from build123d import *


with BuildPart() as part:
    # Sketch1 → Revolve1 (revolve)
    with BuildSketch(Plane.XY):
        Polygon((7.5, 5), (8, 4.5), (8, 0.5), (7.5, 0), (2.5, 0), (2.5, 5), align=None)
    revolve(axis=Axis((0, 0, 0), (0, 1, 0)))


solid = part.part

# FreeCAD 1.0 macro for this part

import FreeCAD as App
import Part
import Sketcher

V = App.Vector
Q = App.Units.Quantity

doc = App.newDocument("Part")
params = doc.addObject("Spreadsheet::Sheet", "Params")
for row, (alias, value) in enumerate([
    ("sketch1_width", "5 mm"),
    ("sketch1_height", "4 mm"),
    ("revolution_angle", "360 deg"),
], start=1):
    params.set(f"A{row}", alias)
    params.set(f"B{row}", "=" + value)
    params.setAlias(f"B{row}", alias)

body = doc.addObject("PartDesign::Body", "Body")

# Sketch on XY plane
sketch1 = doc.addObject("Sketcher::SketchObject", "Sketch")
body.addObject(sketch1)
sketch1.AttachmentSupport = (doc.XY_Plane, [""])
sketch1.MapMode = "FlatFace"
sketch1.addGeometry(Part.LineSegment(V(8, 4.5, 0), V(7.5, 5, 0)), False)
sketch1.addGeometry(Part.LineSegment(V(7.5, 5, 0), V(2.5, 5, 0)), False)
sketch1.addGeometry(Part.LineSegment(V(2.5, 5, 0), V(2.5, 0, 0)), False)
sketch1.addGeometry(Part.LineSegment(V(2.5, 0, 0), V(7.5, 0, 0)), False)
sketch1.addGeometry(Part.LineSegment(V(7.5, 0, 0), V(8, 0.5, 0)), False)
sketch1.addGeometry(Part.LineSegment(V(8, 0.5, 0), V(8, 4.5, 0)), False)
sketch1.addConstraint(Sketcher.Constraint("Coincident", 0, 2, 1, 1))
sketch1.addConstraint(Sketcher.Constraint("Coincident", 1, 2, 2, 1))
sketch1.addConstraint(Sketcher.Constraint("Coincident", 2, 2, 3, 1))
sketch1.addConstraint(Sketcher.Constraint("Coincident", 3, 2, 4, 1))
sketch1.addConstraint(Sketcher.Constraint("Coincident", 4, 2, 5, 1))
sketch1.addConstraint(Sketcher.Constraint("Coincident", 5, 2, 0, 1))
sketch1.addConstraint(Sketcher.Constraint("Horizontal", 1))
sketch1.addConstraint(Sketcher.Constraint("Vertical", 2))
sketch1.addConstraint(Sketcher.Constraint("Horizontal", 3))
sketch1.addConstraint(Sketcher.Constraint("Vertical", 5))
sketch1.addConstraint(Sketcher.Constraint("PointOnObject", 2, 2, -1))
sketch1.addConstraint(Sketcher.Constraint("Perpendicular", 0, 4))
sketch1.addConstraint(Sketcher.Constraint("Vertical", 0, 2, 3, 2))
sketch1.addConstraint(Sketcher.Constraint("Equal", 3, 2))
sketch1.addConstraint(Sketcher.Constraint("Equal", 0, 4))
sketch1.addConstraint(Sketcher.Constraint("DistanceX", 1, 2, 1, 1, Q("5 mm")))
sketch1.addConstraint(Sketcher.Constraint("DistanceY", 5, 1, 5, 2, Q("4 mm")))
sketch1.addConstraint(Sketcher.Constraint("DistanceX", -1, 1, 4, 2, Q("8 mm")))
sketch1.setExpression("Constraints[15]", "Params.sketch1_width")
sketch1.setExpression("Constraints[16]", "Params.sketch1_height")
revolution = doc.addObject("PartDesign::Revolution", "Revolution")
body.addObject(revolution)
revolution.Profile = sketch1
revolution.ReferenceAxis = (sketch1, ["V_Axis"])
revolution.setExpression("Angle", "Params.revolution_angle")

doc.recompute()
